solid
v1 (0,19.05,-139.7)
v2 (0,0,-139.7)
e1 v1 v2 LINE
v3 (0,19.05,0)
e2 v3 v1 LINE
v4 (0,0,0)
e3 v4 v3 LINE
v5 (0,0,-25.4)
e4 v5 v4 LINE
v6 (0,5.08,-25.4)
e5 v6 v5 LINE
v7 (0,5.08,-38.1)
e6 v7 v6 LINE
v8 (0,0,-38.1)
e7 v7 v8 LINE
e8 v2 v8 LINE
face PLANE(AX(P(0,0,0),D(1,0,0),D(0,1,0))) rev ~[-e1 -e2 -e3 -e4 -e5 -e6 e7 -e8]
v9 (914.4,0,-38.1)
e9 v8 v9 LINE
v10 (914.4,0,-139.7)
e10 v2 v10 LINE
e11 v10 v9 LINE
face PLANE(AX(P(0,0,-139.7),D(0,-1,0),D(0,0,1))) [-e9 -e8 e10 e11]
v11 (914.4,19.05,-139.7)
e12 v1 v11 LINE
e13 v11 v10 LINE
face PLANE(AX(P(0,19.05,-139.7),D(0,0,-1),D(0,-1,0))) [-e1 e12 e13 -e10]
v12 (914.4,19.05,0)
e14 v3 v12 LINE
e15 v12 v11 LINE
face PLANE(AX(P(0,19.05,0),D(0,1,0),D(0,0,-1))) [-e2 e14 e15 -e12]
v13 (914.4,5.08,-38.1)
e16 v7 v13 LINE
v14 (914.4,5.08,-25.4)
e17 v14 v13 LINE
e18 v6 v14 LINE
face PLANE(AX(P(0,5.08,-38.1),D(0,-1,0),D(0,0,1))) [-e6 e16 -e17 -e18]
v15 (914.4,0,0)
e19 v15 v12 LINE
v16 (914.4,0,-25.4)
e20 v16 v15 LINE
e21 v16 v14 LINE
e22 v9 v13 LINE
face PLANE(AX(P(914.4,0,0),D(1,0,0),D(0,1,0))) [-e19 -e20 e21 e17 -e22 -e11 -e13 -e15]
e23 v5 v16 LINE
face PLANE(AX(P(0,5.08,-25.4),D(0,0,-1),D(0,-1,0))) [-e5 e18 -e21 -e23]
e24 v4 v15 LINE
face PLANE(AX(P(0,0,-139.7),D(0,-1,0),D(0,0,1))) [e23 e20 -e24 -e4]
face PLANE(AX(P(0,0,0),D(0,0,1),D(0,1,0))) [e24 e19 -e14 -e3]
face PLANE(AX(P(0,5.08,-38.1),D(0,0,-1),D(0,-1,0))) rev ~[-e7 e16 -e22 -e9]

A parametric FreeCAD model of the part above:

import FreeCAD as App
import Part
import Sketcher

V = App.Vector
Q = App.Units.Quantity


def add_polygon(sketch, points):
    """Adds a closed chain of lines whose ends are joined by coincident constraints."""
    first, n = sketch.GeometryCount, len(points)
    for a, b in zip(points, points[1:] + points[:1]):
        sketch.addGeometry(Part.LineSegment(App.Vector(*a, 0), App.Vector(*b, 0)), False)
    for i in range(n):
        sketch.addConstraint(Sketcher.Constraint("Coincident", first + i, 2, first + (i + 1) % n, 1))

doc = App.newDocument("Part")
params = doc.addObject("Spreadsheet::Sheet", "Params")
for row, (alias, value) in enumerate([
    ("sketch1_height", "5.5 in"),
    ("sketch1_width", "0.75 in"),
    ("pad1_length", "36 in"),
    ("sketch2_width", "0.2 in"),
    ("sketch2_height", "0.5 in"),
], start=1):
    params.set(f"A{row}", alias)
    params.set(f"B{row}", "=" + value)
    params.setAlias(f"B{row}", alias)

body = doc.addObject("PartDesign::Body", "Body")

sketch1 = body.newObject("Sketcher::SketchObject", "Sketch")
sketch1.AttachmentSupport = (doc.getObject("YZ_Plane"), [""])
sketch1.MapMode = "FlatFace"
add_polygon(sketch1, [(19, 0), (0, 0), (0, -140), (19, -140)])
sketch1.addConstraint(Sketcher.Constraint("Horizontal", 0))
sketch1.addConstraint(Sketcher.Constraint("Vertical", 1))
sketch1.addConstraint(Sketcher.Constraint("Horizontal", 2))
sketch1.addConstraint(Sketcher.Constraint("Vertical", 3))
sketch1.addConstraint(Sketcher.Constraint("Coincident", 0, 2, -1, 1))
sketch1.addConstraint(Sketcher.Constraint("DistanceY", 1, 2, 1, 1, Q("5.5 in")))
sketch1.addConstraint(Sketcher.Constraint("DistanceX", 0, 2, 0, 1, Q("0.75 in")))
sketch1.setExpression("Constraints[9]", "Params.sketch1_height")
sketch1.setExpression("Constraints[10]", "Params.sketch1_width")
pad1 = body.newObject("PartDesign::Pad", "Pad")
pad1.Profile = sketch1
pad1.setExpression("Length", "Params.pad1_length")

sketch2 = body.newObject("Sketcher::SketchObject", "Sketch001")
sketch2.AttachmentSupport = (doc.getObject("YZ_Plane"), [""])
sketch2.MapMode = "FlatFace"
add_polygon(sketch2, [(0, -38), (0, -25), (5, -25), (5, -38)])
sketch2.addConstraint(Sketcher.Constraint("Vertical", 0))
sketch2.addConstraint(Sketcher.Constraint("Horizontal", 1))
sketch2.addConstraint(Sketcher.Constraint("Vertical", 2))
sketch2.addConstraint(Sketcher.Constraint("Horizontal", 3))
sketch2.addConstraint(Sketcher.Constraint("PointOnObject", 0, 2, -2))
sketch2.addConstraint(Sketcher.Constraint("DistanceX", 1, 1, 1, 2, Q("0.2 in")))
sketch2.addConstraint(Sketcher.Constraint("DistanceY", 0, 1, 0, 2, Q("0.5 in")))
sketch2.addConstraint(Sketcher.Constraint("DistanceY", 0, 2, -1, 1, Q("1 in")))
sketch2.setExpression("Constraints[9]", "Params.sketch2_width")
sketch2.setExpression("Constraints[10]", "Params.sketch2_height")
pocket1 = body.newObject("PartDesign::Pocket", "Pocket")
pocket1.Profile = sketch2
pocket1.Type = "ThroughAll"
pocket1.Reversed = True

doc.recompute()
